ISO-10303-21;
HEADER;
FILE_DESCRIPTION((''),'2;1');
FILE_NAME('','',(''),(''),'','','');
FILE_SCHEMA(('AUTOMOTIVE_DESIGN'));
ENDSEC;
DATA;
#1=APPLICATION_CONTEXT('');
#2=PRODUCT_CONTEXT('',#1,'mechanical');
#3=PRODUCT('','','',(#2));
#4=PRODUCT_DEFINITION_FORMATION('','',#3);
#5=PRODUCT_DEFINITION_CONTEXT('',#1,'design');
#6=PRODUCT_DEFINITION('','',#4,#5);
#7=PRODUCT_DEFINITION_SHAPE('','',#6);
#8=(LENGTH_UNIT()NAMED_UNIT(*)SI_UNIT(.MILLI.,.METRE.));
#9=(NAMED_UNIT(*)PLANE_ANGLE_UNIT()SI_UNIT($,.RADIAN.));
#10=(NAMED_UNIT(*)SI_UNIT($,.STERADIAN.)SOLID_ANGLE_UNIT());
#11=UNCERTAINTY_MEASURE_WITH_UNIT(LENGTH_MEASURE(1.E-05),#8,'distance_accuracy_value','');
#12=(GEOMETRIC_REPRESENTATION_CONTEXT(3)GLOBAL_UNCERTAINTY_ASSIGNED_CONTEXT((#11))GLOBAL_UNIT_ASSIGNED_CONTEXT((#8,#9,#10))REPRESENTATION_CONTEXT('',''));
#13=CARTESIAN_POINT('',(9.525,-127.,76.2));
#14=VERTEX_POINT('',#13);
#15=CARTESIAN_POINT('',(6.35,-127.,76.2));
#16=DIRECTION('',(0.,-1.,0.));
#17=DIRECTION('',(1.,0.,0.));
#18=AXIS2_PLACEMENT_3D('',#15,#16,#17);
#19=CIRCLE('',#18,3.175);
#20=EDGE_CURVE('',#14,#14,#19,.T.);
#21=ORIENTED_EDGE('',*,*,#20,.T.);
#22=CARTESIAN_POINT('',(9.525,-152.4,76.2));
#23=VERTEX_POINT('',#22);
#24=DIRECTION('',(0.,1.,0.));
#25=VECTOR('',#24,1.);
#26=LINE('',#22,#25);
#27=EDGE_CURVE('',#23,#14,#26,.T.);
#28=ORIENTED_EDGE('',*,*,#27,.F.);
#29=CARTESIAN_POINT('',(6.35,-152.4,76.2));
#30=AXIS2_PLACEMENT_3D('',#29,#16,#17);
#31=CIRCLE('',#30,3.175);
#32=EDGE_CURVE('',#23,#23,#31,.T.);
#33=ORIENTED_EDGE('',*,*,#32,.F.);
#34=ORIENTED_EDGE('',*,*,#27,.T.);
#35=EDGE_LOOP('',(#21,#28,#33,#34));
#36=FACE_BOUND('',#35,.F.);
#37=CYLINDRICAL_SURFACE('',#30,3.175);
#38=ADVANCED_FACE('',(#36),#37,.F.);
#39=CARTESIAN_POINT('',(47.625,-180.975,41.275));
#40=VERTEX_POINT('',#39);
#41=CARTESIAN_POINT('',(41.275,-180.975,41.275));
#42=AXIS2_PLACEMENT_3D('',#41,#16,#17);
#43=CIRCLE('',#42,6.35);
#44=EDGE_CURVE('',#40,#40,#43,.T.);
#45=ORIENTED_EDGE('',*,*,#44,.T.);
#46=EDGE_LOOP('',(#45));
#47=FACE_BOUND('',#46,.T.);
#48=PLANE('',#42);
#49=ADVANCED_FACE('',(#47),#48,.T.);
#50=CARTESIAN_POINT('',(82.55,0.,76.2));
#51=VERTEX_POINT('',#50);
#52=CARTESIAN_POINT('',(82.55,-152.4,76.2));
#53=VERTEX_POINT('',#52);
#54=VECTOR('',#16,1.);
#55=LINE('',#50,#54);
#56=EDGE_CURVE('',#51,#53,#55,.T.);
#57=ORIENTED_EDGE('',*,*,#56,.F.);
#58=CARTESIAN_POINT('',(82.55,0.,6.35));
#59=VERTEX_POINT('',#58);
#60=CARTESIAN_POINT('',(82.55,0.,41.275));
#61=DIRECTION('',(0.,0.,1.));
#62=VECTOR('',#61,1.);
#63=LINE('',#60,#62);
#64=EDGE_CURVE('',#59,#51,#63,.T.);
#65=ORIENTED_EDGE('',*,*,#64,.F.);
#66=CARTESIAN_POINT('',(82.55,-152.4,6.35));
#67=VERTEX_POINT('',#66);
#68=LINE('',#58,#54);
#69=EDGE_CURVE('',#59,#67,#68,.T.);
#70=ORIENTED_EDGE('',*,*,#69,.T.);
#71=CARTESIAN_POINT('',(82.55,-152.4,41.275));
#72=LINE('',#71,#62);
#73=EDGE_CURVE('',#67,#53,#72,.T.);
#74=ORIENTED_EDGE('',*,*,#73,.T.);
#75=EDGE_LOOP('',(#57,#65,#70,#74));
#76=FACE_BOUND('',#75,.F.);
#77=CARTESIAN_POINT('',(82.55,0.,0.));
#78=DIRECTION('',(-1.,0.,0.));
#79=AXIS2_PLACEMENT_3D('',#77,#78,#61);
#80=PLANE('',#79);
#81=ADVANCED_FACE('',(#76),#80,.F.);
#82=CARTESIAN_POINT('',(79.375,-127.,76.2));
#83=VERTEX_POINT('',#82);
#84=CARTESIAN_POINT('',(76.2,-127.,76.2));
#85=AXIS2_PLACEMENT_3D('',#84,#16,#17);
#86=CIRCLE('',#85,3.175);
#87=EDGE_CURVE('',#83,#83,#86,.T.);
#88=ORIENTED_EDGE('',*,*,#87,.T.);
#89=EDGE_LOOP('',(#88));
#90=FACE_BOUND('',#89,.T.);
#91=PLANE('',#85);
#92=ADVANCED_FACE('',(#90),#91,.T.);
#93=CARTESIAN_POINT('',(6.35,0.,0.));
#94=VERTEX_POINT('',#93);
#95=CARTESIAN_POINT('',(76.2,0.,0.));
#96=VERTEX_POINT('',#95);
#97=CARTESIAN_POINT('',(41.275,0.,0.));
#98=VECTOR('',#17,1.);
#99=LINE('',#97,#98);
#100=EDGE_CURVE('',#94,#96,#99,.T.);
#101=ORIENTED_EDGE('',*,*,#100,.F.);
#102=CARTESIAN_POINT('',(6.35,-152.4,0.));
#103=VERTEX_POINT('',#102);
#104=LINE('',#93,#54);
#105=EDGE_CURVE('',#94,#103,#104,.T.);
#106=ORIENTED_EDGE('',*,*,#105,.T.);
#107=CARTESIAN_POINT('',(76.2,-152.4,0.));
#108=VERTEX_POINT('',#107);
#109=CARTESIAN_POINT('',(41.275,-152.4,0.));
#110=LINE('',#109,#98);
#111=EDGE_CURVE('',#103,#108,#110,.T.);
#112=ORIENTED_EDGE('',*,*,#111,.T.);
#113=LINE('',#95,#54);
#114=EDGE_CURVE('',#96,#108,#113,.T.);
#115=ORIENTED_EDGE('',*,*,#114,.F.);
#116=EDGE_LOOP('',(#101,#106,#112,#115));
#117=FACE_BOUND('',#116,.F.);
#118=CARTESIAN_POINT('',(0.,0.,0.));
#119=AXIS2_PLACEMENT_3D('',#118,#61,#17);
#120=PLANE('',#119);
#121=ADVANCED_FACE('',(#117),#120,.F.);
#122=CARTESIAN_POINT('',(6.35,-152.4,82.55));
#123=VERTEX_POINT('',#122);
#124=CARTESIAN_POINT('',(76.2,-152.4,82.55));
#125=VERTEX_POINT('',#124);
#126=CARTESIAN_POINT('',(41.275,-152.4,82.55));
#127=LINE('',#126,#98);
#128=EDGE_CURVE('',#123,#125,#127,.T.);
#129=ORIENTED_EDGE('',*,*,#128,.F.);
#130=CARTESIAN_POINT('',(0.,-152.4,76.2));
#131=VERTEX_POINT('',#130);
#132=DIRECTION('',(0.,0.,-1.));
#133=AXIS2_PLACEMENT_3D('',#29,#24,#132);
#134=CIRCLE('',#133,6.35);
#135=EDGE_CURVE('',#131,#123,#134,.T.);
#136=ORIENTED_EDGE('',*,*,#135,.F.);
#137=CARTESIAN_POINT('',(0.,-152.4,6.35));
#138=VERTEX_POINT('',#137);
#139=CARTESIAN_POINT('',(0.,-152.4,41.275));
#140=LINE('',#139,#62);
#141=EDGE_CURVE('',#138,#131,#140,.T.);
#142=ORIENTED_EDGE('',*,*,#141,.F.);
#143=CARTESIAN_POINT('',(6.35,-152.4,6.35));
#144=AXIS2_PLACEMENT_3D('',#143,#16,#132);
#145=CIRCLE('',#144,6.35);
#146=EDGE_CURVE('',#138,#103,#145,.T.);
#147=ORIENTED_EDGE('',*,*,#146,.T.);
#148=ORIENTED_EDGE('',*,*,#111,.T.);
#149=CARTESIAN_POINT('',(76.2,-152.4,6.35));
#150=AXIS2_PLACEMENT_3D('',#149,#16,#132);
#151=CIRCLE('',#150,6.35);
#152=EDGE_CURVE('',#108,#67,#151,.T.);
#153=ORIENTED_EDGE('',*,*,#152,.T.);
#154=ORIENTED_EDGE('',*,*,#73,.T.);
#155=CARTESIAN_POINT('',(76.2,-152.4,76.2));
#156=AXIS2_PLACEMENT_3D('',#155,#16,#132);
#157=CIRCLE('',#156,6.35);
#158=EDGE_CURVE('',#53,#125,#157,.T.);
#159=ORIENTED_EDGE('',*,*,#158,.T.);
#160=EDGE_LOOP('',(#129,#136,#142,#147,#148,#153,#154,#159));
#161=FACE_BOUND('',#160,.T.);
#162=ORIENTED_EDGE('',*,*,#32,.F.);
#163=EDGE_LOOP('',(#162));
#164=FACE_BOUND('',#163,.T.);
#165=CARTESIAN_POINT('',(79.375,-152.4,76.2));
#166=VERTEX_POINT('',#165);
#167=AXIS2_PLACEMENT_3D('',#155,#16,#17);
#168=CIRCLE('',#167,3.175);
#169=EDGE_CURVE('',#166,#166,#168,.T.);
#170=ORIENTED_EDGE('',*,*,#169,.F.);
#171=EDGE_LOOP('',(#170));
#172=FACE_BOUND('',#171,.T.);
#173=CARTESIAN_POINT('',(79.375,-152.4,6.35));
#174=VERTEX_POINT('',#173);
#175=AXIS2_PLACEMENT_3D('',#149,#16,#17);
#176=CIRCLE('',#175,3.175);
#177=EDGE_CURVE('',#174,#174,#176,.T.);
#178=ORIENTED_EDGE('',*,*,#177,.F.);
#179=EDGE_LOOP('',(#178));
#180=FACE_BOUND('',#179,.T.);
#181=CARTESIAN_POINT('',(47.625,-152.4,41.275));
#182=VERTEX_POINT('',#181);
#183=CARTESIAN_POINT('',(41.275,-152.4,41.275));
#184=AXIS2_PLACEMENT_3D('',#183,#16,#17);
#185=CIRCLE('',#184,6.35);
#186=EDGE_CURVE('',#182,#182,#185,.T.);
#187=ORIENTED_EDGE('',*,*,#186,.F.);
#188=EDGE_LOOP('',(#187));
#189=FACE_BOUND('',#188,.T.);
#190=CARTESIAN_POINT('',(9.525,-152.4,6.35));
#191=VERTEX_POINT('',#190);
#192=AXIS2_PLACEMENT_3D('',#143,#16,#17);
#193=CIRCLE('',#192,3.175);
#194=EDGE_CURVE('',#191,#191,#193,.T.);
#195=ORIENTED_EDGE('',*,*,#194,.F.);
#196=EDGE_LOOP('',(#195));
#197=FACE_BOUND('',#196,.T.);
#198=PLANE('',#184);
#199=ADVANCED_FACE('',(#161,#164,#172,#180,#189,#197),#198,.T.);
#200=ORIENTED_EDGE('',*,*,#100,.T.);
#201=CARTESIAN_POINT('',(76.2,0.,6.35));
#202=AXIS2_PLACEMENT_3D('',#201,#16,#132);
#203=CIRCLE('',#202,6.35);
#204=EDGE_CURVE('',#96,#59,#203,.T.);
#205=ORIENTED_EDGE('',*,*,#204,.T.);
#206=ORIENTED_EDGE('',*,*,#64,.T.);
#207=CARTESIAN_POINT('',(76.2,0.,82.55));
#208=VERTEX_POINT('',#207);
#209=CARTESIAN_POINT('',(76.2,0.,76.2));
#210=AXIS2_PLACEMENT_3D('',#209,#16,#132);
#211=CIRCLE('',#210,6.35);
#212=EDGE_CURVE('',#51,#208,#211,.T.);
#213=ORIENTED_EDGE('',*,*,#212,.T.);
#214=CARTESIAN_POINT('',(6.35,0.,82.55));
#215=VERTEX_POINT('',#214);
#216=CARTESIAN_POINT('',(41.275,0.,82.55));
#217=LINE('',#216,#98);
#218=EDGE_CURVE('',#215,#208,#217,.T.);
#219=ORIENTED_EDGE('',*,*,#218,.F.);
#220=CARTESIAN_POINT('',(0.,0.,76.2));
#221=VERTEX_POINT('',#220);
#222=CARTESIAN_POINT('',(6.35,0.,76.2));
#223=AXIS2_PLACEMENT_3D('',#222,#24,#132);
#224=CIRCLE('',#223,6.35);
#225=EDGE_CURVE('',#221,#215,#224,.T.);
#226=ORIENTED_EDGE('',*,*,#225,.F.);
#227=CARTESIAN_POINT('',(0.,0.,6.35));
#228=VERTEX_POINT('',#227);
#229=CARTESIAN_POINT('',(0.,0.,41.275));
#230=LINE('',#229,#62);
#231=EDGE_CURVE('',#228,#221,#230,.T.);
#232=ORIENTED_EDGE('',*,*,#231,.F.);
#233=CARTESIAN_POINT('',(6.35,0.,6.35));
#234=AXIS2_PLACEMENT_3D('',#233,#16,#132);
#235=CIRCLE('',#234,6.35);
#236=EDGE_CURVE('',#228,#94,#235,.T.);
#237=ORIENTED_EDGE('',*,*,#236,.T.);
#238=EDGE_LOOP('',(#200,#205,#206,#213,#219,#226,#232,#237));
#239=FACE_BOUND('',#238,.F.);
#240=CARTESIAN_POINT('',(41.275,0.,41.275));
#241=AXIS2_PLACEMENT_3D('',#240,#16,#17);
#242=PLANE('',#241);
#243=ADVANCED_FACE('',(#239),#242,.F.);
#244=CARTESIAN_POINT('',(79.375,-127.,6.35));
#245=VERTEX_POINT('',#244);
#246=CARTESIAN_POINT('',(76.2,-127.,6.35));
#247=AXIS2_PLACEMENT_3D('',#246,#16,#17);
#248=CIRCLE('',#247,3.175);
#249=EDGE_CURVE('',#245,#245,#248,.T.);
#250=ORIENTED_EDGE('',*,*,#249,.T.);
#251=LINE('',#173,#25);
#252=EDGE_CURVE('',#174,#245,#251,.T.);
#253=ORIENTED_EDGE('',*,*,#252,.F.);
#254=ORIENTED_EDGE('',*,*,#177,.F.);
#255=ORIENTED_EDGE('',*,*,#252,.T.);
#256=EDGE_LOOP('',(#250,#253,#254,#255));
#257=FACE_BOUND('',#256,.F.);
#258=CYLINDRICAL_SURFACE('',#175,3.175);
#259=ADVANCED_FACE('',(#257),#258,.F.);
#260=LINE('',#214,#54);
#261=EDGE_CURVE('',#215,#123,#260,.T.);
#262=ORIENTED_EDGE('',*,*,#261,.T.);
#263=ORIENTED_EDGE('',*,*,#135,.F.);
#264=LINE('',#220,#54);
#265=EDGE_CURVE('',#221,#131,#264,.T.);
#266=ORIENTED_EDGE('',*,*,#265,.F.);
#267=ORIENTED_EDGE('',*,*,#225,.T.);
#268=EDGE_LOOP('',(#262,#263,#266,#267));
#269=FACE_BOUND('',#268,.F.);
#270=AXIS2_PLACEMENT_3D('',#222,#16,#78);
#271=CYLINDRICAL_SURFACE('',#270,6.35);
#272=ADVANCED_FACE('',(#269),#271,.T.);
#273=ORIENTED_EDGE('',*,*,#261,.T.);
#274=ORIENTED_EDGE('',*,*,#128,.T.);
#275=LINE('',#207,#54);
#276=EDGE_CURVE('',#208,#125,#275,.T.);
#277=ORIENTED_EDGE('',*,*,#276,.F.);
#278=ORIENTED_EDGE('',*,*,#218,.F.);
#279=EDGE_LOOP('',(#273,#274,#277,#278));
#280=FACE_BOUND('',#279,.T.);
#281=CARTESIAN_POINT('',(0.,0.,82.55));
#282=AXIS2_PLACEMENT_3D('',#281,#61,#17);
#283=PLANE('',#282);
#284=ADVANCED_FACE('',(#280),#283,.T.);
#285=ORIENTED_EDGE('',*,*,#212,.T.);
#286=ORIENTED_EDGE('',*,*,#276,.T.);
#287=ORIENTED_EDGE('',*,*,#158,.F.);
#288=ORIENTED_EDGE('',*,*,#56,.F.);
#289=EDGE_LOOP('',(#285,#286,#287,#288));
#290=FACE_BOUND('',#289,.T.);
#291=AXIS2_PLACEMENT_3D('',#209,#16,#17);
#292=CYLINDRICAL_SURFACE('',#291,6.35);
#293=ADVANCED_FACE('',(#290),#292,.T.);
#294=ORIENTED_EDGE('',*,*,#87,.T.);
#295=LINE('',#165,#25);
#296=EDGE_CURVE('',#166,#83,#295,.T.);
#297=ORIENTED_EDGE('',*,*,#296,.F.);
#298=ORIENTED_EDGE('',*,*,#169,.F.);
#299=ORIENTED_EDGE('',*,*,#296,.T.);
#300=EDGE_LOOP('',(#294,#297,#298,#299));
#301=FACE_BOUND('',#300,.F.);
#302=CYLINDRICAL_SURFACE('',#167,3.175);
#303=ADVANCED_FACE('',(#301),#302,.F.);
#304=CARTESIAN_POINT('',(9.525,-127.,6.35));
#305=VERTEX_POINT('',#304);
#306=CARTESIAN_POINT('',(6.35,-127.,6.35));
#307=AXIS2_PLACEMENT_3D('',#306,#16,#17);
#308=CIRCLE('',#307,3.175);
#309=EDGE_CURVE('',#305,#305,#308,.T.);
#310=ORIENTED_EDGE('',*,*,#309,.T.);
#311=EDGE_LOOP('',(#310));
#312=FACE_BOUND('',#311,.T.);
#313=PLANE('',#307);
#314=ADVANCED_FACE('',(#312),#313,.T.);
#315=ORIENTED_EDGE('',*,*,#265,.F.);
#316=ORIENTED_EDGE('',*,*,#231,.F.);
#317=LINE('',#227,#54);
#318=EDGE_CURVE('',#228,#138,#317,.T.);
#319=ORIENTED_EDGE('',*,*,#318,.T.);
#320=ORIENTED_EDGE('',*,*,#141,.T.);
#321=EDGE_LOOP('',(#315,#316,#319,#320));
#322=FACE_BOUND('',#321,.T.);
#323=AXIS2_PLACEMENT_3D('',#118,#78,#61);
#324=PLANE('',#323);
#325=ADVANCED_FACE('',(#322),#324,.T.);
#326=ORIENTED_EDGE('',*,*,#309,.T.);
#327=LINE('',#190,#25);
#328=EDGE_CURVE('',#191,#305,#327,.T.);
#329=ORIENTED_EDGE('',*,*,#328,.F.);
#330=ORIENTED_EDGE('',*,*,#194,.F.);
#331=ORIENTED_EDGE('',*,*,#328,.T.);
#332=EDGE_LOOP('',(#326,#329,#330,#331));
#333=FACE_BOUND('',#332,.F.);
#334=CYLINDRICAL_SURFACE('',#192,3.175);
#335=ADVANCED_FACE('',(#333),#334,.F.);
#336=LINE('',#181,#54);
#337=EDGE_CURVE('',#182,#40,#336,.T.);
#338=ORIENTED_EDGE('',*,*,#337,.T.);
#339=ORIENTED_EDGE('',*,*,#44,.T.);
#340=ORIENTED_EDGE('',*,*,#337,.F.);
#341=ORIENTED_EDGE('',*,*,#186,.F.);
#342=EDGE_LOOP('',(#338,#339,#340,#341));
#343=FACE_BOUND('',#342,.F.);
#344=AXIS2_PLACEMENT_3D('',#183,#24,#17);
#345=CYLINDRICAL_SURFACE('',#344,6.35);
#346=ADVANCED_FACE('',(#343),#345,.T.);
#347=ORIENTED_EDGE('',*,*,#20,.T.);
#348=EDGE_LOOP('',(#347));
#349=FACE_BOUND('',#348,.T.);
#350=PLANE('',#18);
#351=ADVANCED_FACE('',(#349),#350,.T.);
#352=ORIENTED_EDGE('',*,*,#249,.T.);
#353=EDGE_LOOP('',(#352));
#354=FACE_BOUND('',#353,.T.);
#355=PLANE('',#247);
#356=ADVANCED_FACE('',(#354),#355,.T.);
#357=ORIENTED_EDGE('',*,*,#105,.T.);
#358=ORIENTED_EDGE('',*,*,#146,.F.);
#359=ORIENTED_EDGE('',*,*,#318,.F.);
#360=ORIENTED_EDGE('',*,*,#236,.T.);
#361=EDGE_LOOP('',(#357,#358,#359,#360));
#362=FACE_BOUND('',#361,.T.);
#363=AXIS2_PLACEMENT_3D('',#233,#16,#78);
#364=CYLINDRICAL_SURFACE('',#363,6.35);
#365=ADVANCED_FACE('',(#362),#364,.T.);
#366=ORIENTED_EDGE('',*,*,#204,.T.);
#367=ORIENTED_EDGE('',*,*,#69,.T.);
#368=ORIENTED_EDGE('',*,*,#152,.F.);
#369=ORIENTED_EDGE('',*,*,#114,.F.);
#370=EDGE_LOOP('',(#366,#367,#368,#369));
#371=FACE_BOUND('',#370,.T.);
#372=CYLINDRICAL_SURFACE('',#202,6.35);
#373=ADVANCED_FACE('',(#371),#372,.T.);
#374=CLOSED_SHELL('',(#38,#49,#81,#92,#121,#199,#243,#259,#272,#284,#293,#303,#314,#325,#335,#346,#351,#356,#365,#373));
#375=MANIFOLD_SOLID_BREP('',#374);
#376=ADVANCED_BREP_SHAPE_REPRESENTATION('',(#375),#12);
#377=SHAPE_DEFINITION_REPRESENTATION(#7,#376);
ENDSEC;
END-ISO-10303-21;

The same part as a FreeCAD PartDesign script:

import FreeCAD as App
import Part
import Sketcher
Q = App.Units.Quantity


def edges_at(feature, points):
    """Names of the edges that pass closest to the given points."""
    edges = feature.Shape.Edges
    near = lambda p: min(range(len(edges)), key=lambda i: edges[i].distToShape(Part.Vertex(*p))[0])
    return sorted({f"Edge{near(p) + 1}" for p in points})


def add_polygon(sketch, points):
    """Adds a closed chain of lines whose ends are joined by coincident constraints."""
    first, n = sketch.GeometryCount, len(points)
    for a, b in zip(points, points[1:] + points[:1]):
        sketch.addGeometry(Part.LineSegment(App.Vector(*a, 0), App.Vector(*b, 0)), False)
    for i in range(n):
        sketch.addConstraint(Sketcher.Constraint("Coincident", first + i, 2, first + (i + 1) % n, 1))

doc = App.newDocument("Part")
body = doc.addObject("PartDesign::Body", "Body")

# Sketch on XZ plane
sketch1 = body.newObject("Sketcher::SketchObject", "Sketch")
sketch1.AttachmentSupport = (doc.getObject("XZ_Plane"), [""])
sketch1.MapMode = "FlatFace"
add_polygon(sketch1, [(0, 83), (0, 0), (83, 0), (83, 83)])  # lines 0-3
sketch1.addConstraint([
    Sketcher.Constraint("Vertical", 0),
    Sketcher.Constraint("Horizontal", 1),
    Sketcher.Constraint("Vertical", 2),
    Sketcher.Constraint("Horizontal", 3),
    Sketcher.Constraint("Coincident", 0, 2, -1, 1),
    Sketcher.Constraint("Equal", 3, 0),
    Sketcher.Constraint("DistanceX", 1, 1, 1, 2, Q("3.25 in")),
])
pad1 = body.newObject("PartDesign::Pad", "Pad")
pad1.Profile = sketch1
pad1.Length = Q("6 in")
doc.recompute()

fillet = body.newObject("PartDesign::Fillet", "Fillet")
fillet.Base = (pad1, edges_at(pad1, [
    (0, -76.2, 82.55),
    (0, -76.2, 0),
    (82.55, -76.2, 82.55),
    (82.55, -76.2, 0),
]))
fillet.Radius = Q("0.25 in")

# Sketch on XZ plane
sketch2 = body.newObject("Sketcher::SketchObject", "Sketch001")
sketch2.AttachmentSupport = (doc.getObject("XZ_Plane"), [""])
sketch2.MapMode = "FlatFace"
sketch2.AttachmentOffset = App.Placement(App.Vector(0, 0, 6 * 25.4), App.Rotation())
sketch2.addGeometry(Part.Circle(App.Vector(41, 41, 0), App.Vector(0, 0, 1), 6), False)
sketch2.addConstraint([
    Sketcher.Constraint("Diameter", 0, Q("0.5 in")),
    Sketcher.Constraint("DistanceX", -1, 1, 0, 3, Q("1.625 in")),
    Sketcher.Constraint("DistanceY", -1, 1, 0, 3, Q("1.625 in")),
])
pad2 = body.newObject("PartDesign::Pad", "Pad001")
pad2.Profile = sketch2
pad2.Length = Q("1.125 in")

# Sketch on XZ plane
sketch3 = body.newObject("Sketcher::SketchObject", "Sketch002")
sketch3.AttachmentSupport = (doc.getObject("XZ_Plane"), [""])
sketch3.MapMode = "FlatFace"
sketch3.AttachmentOffset = App.Placement(App.Vector(0, 0, 6 * 25.4), App.Rotation())
sketch3.addGeometry([
    Part.Circle(App.Vector(6.3, 76.2, 0), App.Vector(0, 0, 1), 3.2),
    Part.Circle(App.Vector(6.3, 6.3, 0), App.Vector(0, 0, 1), 3.2),
    Part.Circle(App.Vector(76.2, 76.2, 0), App.Vector(0, 0, 1), 3.2),
    Part.Circle(App.Vector(76.2, 6.3, 0), App.Vector(0, 0, 1), 3.2),
], False)
sketch3.addConstraint([
    Sketcher.Constraint("Equal", 0, 1),
    Sketcher.Constraint("Equal", 1, 2),
    Sketcher.Constraint("Equal", 2, 3),
    Sketcher.Constraint("Horizontal", 0, 3, 2, 3),
    Sketcher.Constraint("Horizontal", 1, 3, 3, 3),
    Sketcher.Constraint("Vertical", 0, 3, 1, 3),
    Sketcher.Constraint("Vertical", 2, 3, 3, 3),
    Sketcher.Constraint("Diameter", 0, Q("0.25 in")),
    Sketcher.Constraint("DistanceY", -1, 1, 0, 3, Q("3 in")),
    Sketcher.Constraint("DistanceX", -1, 1, 2, 3, Q("3 in")),
    Sketcher.Constraint("DistanceX", -1, 1, 0, 3, Q("0.25 in")),
    Sketcher.Constraint("DistanceY", -1, 1, 1, 3, Q("0.25 in")),
])
pocket1 = body.newObject("PartDesign::Pocket", "Pocket")
pocket1.Profile = sketch3
pocket1.Length = Q("1 in")

doc.recompute()
